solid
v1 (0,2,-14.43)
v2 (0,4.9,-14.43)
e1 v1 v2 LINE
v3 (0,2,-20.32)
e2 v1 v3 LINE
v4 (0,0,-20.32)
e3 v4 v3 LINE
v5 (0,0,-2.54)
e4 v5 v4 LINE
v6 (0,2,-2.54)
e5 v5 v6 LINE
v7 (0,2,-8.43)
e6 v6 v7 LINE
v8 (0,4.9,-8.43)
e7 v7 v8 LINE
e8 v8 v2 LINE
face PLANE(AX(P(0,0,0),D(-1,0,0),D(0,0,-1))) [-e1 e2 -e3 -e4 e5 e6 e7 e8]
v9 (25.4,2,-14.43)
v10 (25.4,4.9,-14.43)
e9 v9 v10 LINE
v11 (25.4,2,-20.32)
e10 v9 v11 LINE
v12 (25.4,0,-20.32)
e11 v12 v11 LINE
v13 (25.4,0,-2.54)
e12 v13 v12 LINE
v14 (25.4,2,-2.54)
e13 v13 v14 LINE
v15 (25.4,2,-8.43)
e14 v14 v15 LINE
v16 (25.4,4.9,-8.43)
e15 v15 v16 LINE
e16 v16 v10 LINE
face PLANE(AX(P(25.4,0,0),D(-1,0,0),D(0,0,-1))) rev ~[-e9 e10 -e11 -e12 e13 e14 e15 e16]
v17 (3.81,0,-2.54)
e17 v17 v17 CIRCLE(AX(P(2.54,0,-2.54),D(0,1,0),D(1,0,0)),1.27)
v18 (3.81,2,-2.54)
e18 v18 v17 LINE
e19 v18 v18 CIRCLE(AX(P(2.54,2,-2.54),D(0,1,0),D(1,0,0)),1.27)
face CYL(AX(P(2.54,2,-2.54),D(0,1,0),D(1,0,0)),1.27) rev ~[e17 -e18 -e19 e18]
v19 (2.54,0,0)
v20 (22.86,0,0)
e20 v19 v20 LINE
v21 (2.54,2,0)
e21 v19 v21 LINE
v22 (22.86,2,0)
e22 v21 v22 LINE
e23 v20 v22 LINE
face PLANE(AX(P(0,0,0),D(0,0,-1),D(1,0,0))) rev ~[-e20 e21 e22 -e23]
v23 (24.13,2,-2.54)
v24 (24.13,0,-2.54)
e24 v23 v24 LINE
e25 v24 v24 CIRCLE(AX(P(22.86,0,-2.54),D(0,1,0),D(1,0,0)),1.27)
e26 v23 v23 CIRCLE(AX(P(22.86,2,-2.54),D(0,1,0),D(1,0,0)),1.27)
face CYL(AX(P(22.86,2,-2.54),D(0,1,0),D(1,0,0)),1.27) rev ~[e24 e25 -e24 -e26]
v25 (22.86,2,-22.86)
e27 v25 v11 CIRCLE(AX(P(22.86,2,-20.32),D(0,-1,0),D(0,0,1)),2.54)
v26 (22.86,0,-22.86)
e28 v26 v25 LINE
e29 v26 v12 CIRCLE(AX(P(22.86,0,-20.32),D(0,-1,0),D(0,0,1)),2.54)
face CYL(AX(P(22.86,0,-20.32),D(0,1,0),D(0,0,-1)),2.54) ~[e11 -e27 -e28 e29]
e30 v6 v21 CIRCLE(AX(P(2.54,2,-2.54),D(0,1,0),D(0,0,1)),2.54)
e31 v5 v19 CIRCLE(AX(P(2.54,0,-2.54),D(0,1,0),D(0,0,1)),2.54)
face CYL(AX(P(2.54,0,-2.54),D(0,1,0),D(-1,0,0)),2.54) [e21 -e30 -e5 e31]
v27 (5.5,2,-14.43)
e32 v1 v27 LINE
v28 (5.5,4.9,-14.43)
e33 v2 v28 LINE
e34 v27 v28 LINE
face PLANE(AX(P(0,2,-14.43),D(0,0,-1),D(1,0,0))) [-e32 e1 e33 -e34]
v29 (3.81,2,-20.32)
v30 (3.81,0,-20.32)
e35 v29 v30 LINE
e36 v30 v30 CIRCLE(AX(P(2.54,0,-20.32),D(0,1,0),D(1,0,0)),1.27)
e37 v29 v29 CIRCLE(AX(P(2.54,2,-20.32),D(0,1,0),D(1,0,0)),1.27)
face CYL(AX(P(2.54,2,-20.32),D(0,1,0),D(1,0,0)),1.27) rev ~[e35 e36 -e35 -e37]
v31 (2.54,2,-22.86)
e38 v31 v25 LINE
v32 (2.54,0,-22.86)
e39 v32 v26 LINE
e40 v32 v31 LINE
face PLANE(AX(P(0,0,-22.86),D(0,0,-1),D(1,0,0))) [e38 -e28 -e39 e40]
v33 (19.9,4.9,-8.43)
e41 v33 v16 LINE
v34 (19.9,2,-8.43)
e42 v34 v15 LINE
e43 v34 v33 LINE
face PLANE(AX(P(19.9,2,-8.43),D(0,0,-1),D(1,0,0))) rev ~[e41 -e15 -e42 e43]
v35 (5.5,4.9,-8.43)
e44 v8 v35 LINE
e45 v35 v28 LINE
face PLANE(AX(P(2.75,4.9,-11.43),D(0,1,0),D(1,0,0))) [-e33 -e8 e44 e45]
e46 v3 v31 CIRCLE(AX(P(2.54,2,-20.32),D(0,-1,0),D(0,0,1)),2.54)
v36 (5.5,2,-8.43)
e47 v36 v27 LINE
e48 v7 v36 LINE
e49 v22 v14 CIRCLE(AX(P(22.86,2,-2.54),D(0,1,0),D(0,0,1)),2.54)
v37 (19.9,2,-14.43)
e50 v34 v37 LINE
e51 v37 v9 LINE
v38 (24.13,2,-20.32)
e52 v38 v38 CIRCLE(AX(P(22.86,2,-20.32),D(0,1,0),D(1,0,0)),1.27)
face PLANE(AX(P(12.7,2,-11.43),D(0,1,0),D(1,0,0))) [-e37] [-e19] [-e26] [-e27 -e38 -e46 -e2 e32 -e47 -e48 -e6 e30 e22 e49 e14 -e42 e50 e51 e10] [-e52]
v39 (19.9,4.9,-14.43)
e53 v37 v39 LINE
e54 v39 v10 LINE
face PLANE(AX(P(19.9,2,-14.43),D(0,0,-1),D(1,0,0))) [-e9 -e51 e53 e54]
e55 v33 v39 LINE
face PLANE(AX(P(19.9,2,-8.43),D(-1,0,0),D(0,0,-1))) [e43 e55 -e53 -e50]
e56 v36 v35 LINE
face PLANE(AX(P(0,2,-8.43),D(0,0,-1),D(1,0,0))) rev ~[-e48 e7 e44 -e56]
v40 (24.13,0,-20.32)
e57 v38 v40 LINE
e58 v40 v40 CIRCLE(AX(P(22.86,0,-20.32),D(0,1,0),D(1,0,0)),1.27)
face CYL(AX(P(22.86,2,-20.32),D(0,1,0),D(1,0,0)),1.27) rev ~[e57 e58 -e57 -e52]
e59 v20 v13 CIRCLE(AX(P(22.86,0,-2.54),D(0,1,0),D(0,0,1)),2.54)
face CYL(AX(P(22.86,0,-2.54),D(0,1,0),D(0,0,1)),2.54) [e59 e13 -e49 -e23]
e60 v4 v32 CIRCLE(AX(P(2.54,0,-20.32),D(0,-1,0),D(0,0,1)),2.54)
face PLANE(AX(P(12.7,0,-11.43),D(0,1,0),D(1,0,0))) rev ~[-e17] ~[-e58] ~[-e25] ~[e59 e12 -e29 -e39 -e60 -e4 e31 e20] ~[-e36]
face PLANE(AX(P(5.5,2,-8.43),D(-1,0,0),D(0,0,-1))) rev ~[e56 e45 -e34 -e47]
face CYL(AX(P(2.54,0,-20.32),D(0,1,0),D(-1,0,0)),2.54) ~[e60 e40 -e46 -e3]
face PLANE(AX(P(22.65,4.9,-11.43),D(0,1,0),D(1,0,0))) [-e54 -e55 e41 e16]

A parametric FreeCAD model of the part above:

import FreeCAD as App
import Part
import Sketcher

V = App.Vector


def edges_at(feature, points):
    """Names of the edges that pass closest to the given points."""
    edges = feature.Shape.Edges
    near = lambda p: min(range(len(edges)), key=lambda i: edges[i].distToShape(Part.Vertex(*p))[0])
    return sorted({f"Edge{near(p) + 1}" for p in points})


def add_polygon(sketch, points):
    """Adds a closed chain of lines whose ends are joined by coincident constraints."""
    first, n = sketch.GeometryCount, len(points)
    for a, b in zip(points, points[1:] + points[:1]):
        sketch.addGeometry(Part.LineSegment(App.Vector(*a, 0), App.Vector(*b, 0)), False)
    for i in range(n):
        sketch.addConstraint(Sketcher.Constraint("Coincident", first + i, 2, first + (i + 1) % n, 1))

doc = App.newDocument("Part")
body = doc.addObject("PartDesign::Body", "Body")

sketch1 = body.newObject("Sketcher::SketchObject", "Sketch")
sketch1.AttachmentSupport = (doc.getObject("XZ_Plane"), [""])
sketch1.MapMode = "FlatFace"
add_polygon(sketch1, [(0, -23), (0, 0), (25, 0), (25, -23)])
sketch1.addConstraint([
    Sketcher.Constraint("Vertical", 0),
    Sketcher.Constraint("Horizontal", 1),
    Sketcher.Constraint("Vertical", 2),
    Sketcher.Constraint("Horizontal", 3),
    Sketcher.Constraint("Coincident", 0, 2, -1, 1),
    Sketcher.Constraint("DistanceX", 1, 1, 1, 2, 25.4),
    Sketcher.Constraint("DistanceY", 0, 1, 0, 2, 22.86),
])
pad1 = body.newObject("PartDesign::Pad", "Pad")
pad1.Profile = sketch1
pad1.Length = 2
pad1.Reversed = True

sketch2 = body.newObject("Sketcher::SketchObject", "Sketch001")
sketch2.AttachmentSupport = (doc.getObject("XZ_Plane"), [""])
sketch2.MapMode = "FlatFace"
sketch2.AttachmentOffset = App.Placement(V(0, 0, -2), App.Rotation())
sketch2.addGeometry([
    Part.Circle(V(2.5, -2.5, 0), V(0, 0, 1), 1.3),
    Part.Circle(V(22.9, -2.5, 0), V(0, 0, 1), 1.3),
    Part.Circle(V(22.9, -20.3, 0), V(0, 0, 1), 1.3),
    Part.Circle(V(2.5, -20.3, 0), V(0, 0, 1), 1.3),
], False)
sketch2.addConstraint([
    Sketcher.Constraint("Equal", 0, 1),
    Sketcher.Constraint("Equal", 1, 2),
    Sketcher.Constraint("Equal", 2, 3),
    Sketcher.Constraint("Horizontal", 0, 3, 1, 3),
    Sketcher.Constraint("Horizontal", 2, 3, 3, 3),
    Sketcher.Constraint("Vertical", 1, 3, 2, 3),
    Sketcher.Constraint("Vertical", 0, 3, 3, 3),
    Sketcher.Constraint("Diameter", 0, 2.54),
    Sketcher.Constraint("DistanceX", -1, 1, 0, 3, 2.54),
    Sketcher.Constraint("DistanceY", 0, 3, -1, 1, 2.54),
    Sketcher.Constraint("DistanceX", -1, 1, 1, 3, 22.86),
    Sketcher.Constraint("DistanceY", 2, 3, -1, 1, 20.32),
])
pocket1 = body.newObject("PartDesign::Pocket", "Pocket")
pocket1.Profile = sketch2
pocket1.Type = "ThroughAll"
pocket1.Reversed = True
doc.recompute()

fillet = body.newObject("PartDesign::Fillet", "Fillet")
fillet.Base = (pocket1, edges_at(pocket1, [
    (0, 1, -22.86),
    (25.4, 1, -22.86),
    (25.4, 1, 0),
    (0, 1, 0),
]))
fillet.Radius = 2.54

sketch3 = body.newObject("Sketcher::SketchObject", "Sketch002")
sketch3.AttachmentSupport = (doc.getObject("XZ_Plane"), [""])
sketch3.MapMode = "FlatFace"
sketch3.AttachmentOffset = App.Placement(V(0, 0, -2), App.Rotation())
add_polygon(sketch3, [(0, -14), (0, -8), (6, -8), (6, -14)])
add_polygon(sketch3, [(20, -14), (20, -8), (25, -8), (25, -14)])
sketch3.addConstraint([
    Sketcher.Constraint("Vertical", 0),
    Sketcher.Constraint("Horizontal", 1),
    Sketcher.Constraint("Vertical", 2),
    Sketcher.Constraint("Horizontal", 3),
    Sketcher.Constraint("Vertical", 4),
    Sketcher.Constraint("Horizontal", 5),
    Sketcher.Constraint("Vertical", 6),
    Sketcher.Constraint("Horizontal", 7),
    Sketcher.Constraint("PointOnObject", 0, 2, -2),
    Sketcher.Constraint("Horizontal", 1, 2, 4, 2),
    Sketcher.Constraint("Horizontal", 3, 2, 6, 2),
    Sketcher.Constraint("Equal", 3, 5),
    Sketcher.Constraint("DistanceY", 0, 1, 0, 2, 6.0),
    Sketcher.Constraint("DistanceX", 1, 1, 1, 2, 5.5),
    Sketcher.Constraint("DistanceX", -1, 1, 4, 2, 19.9),
    Sketcher.Constraint("DistanceY", 0, 2, -1, 1, 8.43),
])
pad2 = body.newObject("PartDesign::Pad", "Pad001")
pad2.Profile = sketch3
pad2.Length = 2.9
pad2.Reversed = True

doc.recompute()
